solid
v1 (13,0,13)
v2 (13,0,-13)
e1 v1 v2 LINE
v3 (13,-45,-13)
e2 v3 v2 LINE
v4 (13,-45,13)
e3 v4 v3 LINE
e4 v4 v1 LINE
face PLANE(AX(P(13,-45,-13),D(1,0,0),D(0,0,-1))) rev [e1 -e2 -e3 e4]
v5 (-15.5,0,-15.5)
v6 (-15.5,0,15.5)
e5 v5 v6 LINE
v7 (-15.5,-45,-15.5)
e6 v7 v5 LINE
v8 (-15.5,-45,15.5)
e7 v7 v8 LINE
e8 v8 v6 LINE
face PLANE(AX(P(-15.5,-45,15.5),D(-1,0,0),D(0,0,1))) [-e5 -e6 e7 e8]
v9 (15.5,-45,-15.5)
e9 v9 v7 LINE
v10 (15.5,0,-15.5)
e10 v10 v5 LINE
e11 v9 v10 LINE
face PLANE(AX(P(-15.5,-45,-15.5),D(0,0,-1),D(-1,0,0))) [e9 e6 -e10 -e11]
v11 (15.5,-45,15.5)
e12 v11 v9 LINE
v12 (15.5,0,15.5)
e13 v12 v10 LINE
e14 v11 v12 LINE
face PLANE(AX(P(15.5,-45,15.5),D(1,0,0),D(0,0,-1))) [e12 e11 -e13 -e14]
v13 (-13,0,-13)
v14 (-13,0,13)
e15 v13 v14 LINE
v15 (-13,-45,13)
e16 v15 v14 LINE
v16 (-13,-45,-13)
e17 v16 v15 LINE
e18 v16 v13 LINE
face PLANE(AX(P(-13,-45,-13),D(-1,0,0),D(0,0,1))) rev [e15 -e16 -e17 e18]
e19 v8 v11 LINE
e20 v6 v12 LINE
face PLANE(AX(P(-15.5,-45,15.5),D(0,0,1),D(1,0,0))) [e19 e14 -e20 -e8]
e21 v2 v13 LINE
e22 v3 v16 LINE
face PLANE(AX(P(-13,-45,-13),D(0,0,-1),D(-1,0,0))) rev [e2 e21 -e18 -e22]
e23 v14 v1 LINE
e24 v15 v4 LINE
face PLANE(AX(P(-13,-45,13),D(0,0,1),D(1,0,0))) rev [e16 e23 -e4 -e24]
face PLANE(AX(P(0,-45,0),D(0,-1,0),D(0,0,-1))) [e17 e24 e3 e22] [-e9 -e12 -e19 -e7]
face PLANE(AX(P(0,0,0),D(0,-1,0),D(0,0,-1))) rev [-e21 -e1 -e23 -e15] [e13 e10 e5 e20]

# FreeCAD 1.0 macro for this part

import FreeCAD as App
import Part
import Sketcher
from FreeCAD import Vector

doc = App.newDocument("Part")
params = doc.addObject("Spreadsheet::Sheet", "Params")
for row, (alias, value) in enumerate([
    ("sketch1_width", "31 mm"),
    ("sketch1_width2", "26 mm"),
    ("pad1_length", "45 mm"),
], start=1):
    params.set(f"A{row}", alias)
    params.set(f"B{row}", "=" + value)
    params.setAlias(f"B{row}", alias)

body = doc.addObject("PartDesign::Body", "Body")

# Sketch on XZ plane
sketch1 = body.newObject("Sketcher::SketchObject", "Sketch")
sketch1.AttachmentSupport = (doc.getObject("XZ_Plane"), [""])
sketch1.MapMode = "FlatFace"
sketch1.addGeometry([
    Part.LineSegment(Vector(-15.5, -15.5, 0), Vector(-15.5, 15.5, 0)),  # 0
    Part.LineSegment(Vector(-15.5, 15.5, 0), Vector(15.5, 15.5, 0)),  # 1
    Part.LineSegment(Vector(15.5, 15.5, 0), Vector(15.5, -15.5, 0)),  # 2
    Part.LineSegment(Vector(15.5, -15.5, 0), Vector(-15.5, -15.5, 0)),  # 3
    Part.LineSegment(Vector(13, 13, 0), Vector(-13, 13, 0)),  # 4
    Part.LineSegment(Vector(-13, 13, 0), Vector(-13, -13, 0)),  # 5
    Part.LineSegment(Vector(-13, -13, 0), Vector(13, -13, 0)),  # 6
    Part.LineSegment(Vector(13, -13, 0), Vector(13, 13, 0)),  # 7
], False)
sketch1.addConstraint([
    Sketcher.Constraint("Coincident", 0, 2, 1, 1),
    Sketcher.Constraint("Coincident", 1, 2, 2, 1),
    Sketcher.Constraint("Coincident", 2, 2, 3, 1),
    Sketcher.Constraint("Coincident", 3, 2, 0, 1),
    Sketcher.Constraint("Coincident", 4, 2, 5, 1),
    Sketcher.Constraint("Coincident", 5, 2, 6, 1),
    Sketcher.Constraint("Coincident", 6, 2, 7, 1),
    Sketcher.Constraint("Coincident", 7, 2, 4, 1),
    Sketcher.Constraint("Vertical", 0),
    Sketcher.Constraint("Horizontal", 1),
    Sketcher.Constraint("Vertical", 2),
    Sketcher.Constraint("Horizontal", 3),
    Sketcher.Constraint("Horizontal", 4),
    Sketcher.Constraint("Vertical", 5),
    Sketcher.Constraint("Horizontal", 6),
    Sketcher.Constraint("Vertical", 7),
    Sketcher.Constraint("Symmetric", 0, 2, 2, 2, -1, 1),
    Sketcher.Constraint("Symmetric", 4, 2, 6, 2, -1, 1),
    Sketcher.Constraint("Equal", 3, 0),
    Sketcher.Constraint("Equal", 6, 5),
    Sketcher.Constraint("DistanceX", 1, 1, 1, 2, 31.0),
    Sketcher.Constraint("DistanceX", 4, 2, 4, 1, 26.0),
])
sketch1.setExpression("Constraints[20]", "Params.sketch1_width")
sketch1.setExpression("Constraints[21]", "Params.sketch1_width2")
pad1 = body.newObject("PartDesign::Pad", "Pad")
pad1.Profile = sketch1
pad1.setExpression("Length", "Params.pad1_length")

doc.recompute()
